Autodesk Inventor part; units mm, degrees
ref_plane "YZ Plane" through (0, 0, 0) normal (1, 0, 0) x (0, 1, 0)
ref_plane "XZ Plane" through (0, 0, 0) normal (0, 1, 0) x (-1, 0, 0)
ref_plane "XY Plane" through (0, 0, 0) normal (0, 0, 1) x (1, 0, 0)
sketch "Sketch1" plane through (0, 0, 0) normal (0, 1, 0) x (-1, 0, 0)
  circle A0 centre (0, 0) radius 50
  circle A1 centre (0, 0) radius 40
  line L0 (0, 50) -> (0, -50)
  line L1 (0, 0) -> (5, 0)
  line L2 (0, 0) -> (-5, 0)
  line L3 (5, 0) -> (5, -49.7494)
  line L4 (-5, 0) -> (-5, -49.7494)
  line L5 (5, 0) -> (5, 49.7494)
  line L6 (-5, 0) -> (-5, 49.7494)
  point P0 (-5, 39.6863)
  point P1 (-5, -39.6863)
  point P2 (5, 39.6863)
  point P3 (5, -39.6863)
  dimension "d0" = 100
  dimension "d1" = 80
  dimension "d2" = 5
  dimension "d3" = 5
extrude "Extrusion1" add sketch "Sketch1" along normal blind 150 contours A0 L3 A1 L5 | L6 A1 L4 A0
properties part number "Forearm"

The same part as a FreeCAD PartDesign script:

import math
import FreeCAD as App
import Part
import Sketcher
from FreeCAD import Vector
Q = App.Units.Quantity

doc = App.newDocument("Part")
body = doc.addObject("PartDesign::Body", "Body")
body.AllowCompound = True

sketch1 = doc.addObject("Sketcher::SketchObject", "Sketch")
body.addObject(sketch1)
sketch1.AttachmentSupport = (doc.XZ_Plane, [""])
sketch1.MapMode = "FlatFace"
sketch1.addGeometry(Part.ArcOfCircle(Part.Circle(Vector(0, 0, 0), Vector(0, 0, 1), 50), math.radians(96), math.radians(264)), False)
sketch1.addGeometry(Part.LineSegment(Vector(-5, 50, 0), Vector(-5, 40, 0)), False)
sketch1.addGeometry(Part.ArcOfCircle(Part.Circle(Vector(0, 0, 0), Vector(0, 0, 1), 40), math.radians(97), math.radians(263)), False)
sketch1.addGeometry(Part.LineSegment(Vector(-5, -40, 0), Vector(-5, -50, 0)), False)
sketch1.addGeometry(Part.LineSegment(Vector(5, 40, 0), Vector(5, 50, 0)), False)
sketch1.addGeometry(Part.ArcOfCircle(Part.Circle(Vector(0, 0, 0), Vector(0, 0, 1), 50), math.radians(-84), math.radians(84)), False)
sketch1.addGeometry(Part.LineSegment(Vector(5, -50, 0), Vector(5, -40, 0)), False)
sketch1.addGeometry(Part.ArcOfCircle(Part.Circle(Vector(0, 0, 0), Vector(0, 0, 1), 40), math.radians(-83), math.radians(83)), False)
sketch1.addConstraint(Sketcher.Constraint("Coincident", 0, 1, 1, 1))
sketch1.addConstraint(Sketcher.Constraint("Coincident", 1, 2, 2, 1))
sketch1.addConstraint(Sketcher.Constraint("Coincident", 2, 2, 3, 1))
sketch1.addConstraint(Sketcher.Constraint("Coincident", 3, 2, 0, 2))
sketch1.addConstraint(Sketcher.Constraint("Coincident", 4, 2, 5, 2))
sketch1.addConstraint(Sketcher.Constraint("Coincident", 5, 1, 6, 1))
sketch1.addConstraint(Sketcher.Constraint("Coincident", 6, 2, 7, 1))
sketch1.addConstraint(Sketcher.Constraint("Coincident", 7, 2, 4, 1))
sketch1.addConstraint(Sketcher.Constraint("Vertical", 1))
sketch1.addConstraint(Sketcher.Constraint("Vertical", 3))
sketch1.addConstraint(Sketcher.Constraint("Vertical", 4))
sketch1.addConstraint(Sketcher.Constraint("Vertical", 6))
sketch1.addConstraint(Sketcher.Constraint("Coincident", 0, 3, -1, 1))
sketch1.addConstraint(Sketcher.Constraint("Coincident", 2, 3, -1, 1))
sketch1.addConstraint(Sketcher.Constraint("Coincident", 5, 3, -1, 1))
sketch1.addConstraint(Sketcher.Constraint("Coincident", 7, 3, -1, 1))
sketch1.addConstraint(Sketcher.Constraint("Equal", 0, 5))
sketch1.addConstraint(Sketcher.Constraint("Equal", 2, 7))
sketch1.addConstraint(Sketcher.Constraint("Horizontal", 0, 1, 4, 2))
sketch1.addConstraint(Sketcher.Constraint("Horizontal", 3, 2, 5, 1))
sketch1.addConstraint(Sketcher.Constraint("Vertical", 1, 2, 2, 2))
sketch1.addConstraint(Sketcher.Constraint("Radius", 0, Q("1.9685 in")))
sketch1.addConstraint(Sketcher.Constraint("Radius", 2, Q("1.5748 in")))
sketch1.addConstraint(Sketcher.Constraint("DistanceX", 0, 1, -1, 1, 5.0))
pad1 = doc.addObject("PartDesign::Pad", "Pad")
body.addObject(pad1)
pad1.Profile = sketch1
pad1.Length = Q("5.9055118 in")
pad1.Reversed = True

doc.recompute()
